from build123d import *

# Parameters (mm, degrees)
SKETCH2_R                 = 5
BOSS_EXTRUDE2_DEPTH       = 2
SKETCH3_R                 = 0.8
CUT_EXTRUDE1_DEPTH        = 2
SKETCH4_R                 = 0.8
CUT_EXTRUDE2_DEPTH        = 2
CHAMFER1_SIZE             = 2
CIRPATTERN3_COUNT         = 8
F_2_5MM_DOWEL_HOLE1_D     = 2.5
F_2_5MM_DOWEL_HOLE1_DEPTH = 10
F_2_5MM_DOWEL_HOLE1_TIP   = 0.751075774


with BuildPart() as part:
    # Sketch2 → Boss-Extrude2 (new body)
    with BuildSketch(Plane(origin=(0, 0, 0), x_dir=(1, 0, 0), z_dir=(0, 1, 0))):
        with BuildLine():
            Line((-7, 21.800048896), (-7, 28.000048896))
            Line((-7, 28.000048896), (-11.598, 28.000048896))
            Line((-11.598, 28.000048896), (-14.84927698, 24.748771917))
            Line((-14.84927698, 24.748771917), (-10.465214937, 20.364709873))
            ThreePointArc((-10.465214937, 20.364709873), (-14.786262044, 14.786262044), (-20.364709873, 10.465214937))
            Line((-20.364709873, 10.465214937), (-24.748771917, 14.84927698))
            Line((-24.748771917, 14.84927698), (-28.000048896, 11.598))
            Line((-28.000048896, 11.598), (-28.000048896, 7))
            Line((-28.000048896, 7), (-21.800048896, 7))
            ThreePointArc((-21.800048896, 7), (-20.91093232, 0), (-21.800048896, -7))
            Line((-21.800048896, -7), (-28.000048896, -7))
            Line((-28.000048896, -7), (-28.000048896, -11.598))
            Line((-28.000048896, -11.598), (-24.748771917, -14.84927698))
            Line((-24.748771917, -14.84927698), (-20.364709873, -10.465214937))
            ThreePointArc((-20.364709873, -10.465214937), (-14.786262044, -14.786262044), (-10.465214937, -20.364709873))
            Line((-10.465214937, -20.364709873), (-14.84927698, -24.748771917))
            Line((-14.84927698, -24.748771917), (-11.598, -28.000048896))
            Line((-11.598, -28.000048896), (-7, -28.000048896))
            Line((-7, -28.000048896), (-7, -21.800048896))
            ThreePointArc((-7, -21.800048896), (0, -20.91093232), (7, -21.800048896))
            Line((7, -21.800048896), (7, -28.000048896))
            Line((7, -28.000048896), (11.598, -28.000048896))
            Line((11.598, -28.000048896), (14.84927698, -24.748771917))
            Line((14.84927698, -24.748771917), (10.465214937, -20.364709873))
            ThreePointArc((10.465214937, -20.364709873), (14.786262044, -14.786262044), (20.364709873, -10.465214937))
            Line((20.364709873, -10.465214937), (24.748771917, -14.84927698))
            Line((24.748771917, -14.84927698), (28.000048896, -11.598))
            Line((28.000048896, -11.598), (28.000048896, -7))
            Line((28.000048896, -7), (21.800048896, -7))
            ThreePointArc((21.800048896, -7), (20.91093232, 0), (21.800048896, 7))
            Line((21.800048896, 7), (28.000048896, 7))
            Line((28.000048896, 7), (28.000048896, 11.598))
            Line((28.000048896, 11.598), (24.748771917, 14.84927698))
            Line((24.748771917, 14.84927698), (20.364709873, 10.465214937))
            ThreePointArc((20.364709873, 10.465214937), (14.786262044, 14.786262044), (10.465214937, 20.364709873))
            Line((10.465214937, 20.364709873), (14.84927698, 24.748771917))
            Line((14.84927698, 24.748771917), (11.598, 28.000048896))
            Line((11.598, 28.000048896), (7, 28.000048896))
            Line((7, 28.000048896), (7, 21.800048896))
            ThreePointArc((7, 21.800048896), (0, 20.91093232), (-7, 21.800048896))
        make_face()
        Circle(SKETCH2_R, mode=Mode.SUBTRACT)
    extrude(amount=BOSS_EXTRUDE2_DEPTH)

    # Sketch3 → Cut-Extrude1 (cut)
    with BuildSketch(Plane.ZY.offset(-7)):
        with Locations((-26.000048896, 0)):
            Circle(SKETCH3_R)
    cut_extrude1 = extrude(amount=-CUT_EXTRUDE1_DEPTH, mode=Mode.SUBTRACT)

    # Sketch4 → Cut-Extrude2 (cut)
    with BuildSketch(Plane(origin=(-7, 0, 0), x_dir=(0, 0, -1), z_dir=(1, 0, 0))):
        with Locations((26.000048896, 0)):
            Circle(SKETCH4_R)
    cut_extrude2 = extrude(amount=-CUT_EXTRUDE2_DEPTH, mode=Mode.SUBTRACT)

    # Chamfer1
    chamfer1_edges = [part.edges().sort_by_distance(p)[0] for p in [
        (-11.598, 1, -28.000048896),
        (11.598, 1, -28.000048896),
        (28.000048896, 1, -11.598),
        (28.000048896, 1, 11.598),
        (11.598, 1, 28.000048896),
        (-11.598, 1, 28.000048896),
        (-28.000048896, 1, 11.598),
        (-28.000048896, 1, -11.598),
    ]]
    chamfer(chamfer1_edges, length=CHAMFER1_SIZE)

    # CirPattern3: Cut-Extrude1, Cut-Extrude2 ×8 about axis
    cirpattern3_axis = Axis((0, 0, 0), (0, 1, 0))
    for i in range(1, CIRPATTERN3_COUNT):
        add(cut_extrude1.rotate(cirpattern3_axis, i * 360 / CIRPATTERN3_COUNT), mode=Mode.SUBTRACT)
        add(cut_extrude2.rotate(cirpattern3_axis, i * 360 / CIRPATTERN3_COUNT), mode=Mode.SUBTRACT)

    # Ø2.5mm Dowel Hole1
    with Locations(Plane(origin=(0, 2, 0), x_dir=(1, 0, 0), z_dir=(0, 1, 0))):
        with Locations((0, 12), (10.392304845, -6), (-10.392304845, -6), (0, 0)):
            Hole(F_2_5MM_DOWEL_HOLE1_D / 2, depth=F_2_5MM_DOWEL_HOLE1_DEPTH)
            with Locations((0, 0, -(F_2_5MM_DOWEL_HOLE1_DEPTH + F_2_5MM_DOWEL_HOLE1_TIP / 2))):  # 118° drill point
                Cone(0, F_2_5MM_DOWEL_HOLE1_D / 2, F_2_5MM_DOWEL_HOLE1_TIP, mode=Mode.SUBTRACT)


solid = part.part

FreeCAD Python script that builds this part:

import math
import FreeCAD as App
import Part
import Sketcher
from FreeCAD import Vector
Q = App.Units.Quantity


def edges_at(feature, points):
    """Names of the edges that pass closest to the given points."""
    edges = feature.Shape.Edges
    near = lambda p: min(range(len(edges)), key=lambda i: edges[i].distToShape(Part.Vertex(*p))[0])
    return sorted({f"Edge{near(p) + 1}" for p in points})

doc = App.newDocument("Part")
body = doc.addObject("PartDesign::Body", "Body")

# Sketch on XZ plane
sketch1 = body.newObject("Sketcher::SketchObject", "Sketch")
sketch1.AttachmentSupport = (doc.getObject("XZ_Plane"), [""])
sketch1.MapMode = "FlatFace"
sketch1.addGeometry([
    Part.LineSegment(Vector(-7, -21.800049, 0), Vector(-7, -28.000049, 0)),  # 0
    Part.LineSegment(Vector(-7, -28.000049, 0), Vector(-11.598, -28.000049, 0)),  # 1
    Part.LineSegment(Vector(-11.598, -28.000049, 0), Vector(-14.849277, -24.748772, 0)),  # 2
    Part.LineSegment(Vector(-14.849277, -24.748772, 0), Vector(-10.465215, -20.36471, 0)),  # 3
    Part.ArcOfCircle(Part.Circle(Vector(-34.585252, -34.585252, 0), Vector(0, 0, 1), 28), math.radians(30.522488), math.radians(59.477512)),  # 4
    Part.LineSegment(Vector(-20.36471, -10.465215, 0), Vector(-24.748772, -14.849277, 0)),  # 5
    Part.LineSegment(Vector(-24.748772, -14.849277, 0), Vector(-28.000049, -11.598, 0)),  # 6
    Part.LineSegment(Vector(-28.000049, -11.598, 0), Vector(-28.000049, -7, 0)),  # 7
    Part.LineSegment(Vector(-28.000049, -7, 0), Vector(-21.800049, -7, 0)),  # 8
    Part.ArcOfCircle(Part.Circle(Vector(-48.910932, 0, 0), Vector(0, 0, 1), 28), math.radians(-14.477512), math.radians(14.477512)),  # 9
    Part.LineSegment(Vector(-21.800049, 7, 0), Vector(-28.000049, 7, 0)),  # 10
    Part.LineSegment(Vector(-28.000049, 7, 0), Vector(-28.000049, 11.598, 0)),  # 11
    Part.LineSegment(Vector(-28.000049, 11.598, 0), Vector(-24.748772, 14.849277, 0)),  # 12
    Part.LineSegment(Vector(-24.748772, 14.849277, 0), Vector(-20.36471, 10.465215, 0)),  # 13
    Part.ArcOfCircle(Part.Circle(Vector(-34.585252, 34.585252, 0), Vector(0, 0, 1), 28), math.radians(-59.477512), math.radians(-30.522488)),  # 14
    Part.LineSegment(Vector(-10.465215, 20.36471, 0), Vector(-14.849277, 24.748772, 0)),  # 15
    Part.LineSegment(Vector(-14.849277, 24.748772, 0), Vector(-11.598, 28.000049, 0)),  # 16
    Part.LineSegment(Vector(-11.598, 28.000049, 0), Vector(-7, 28.000049, 0)),  # 17
    Part.LineSegment(Vector(-7, 28.000049, 0), Vector(-7, 21.800049, 0)),  # 18
    Part.ArcOfCircle(Part.Circle(Vector(0, 48.910932, 0), Vector(0, 0, 1), 28), math.radians(-104.477512), math.radians(-75.522488)),  # 19
    Part.LineSegment(Vector(7, 21.800049, 0), Vector(7, 28.000049, 0)),  # 20
    Part.LineSegment(Vector(7, 28.000049, 0), Vector(11.598, 28.000049, 0)),  # 21
    Part.LineSegment(Vector(11.598, 28.000049, 0), Vector(14.849277, 24.748772, 0)),  # 22
    Part.LineSegment(Vector(14.849277, 24.748772, 0), Vector(10.465215, 20.36471, 0)),  # 23
    Part.ArcOfCircle(Part.Circle(Vector(34.585252, 34.585252, 0), Vector(0, 0, 1), 28), math.radians(-149.477512), math.radians(-120.522488)),  # 24
    Part.LineSegment(Vector(20.36471, 10.465215, 0), Vector(24.748772, 14.849277, 0)),  # 25
    Part.LineSegment(Vector(24.748772, 14.849277, 0), Vector(28.000049, 11.598, 0)),  # 26
    Part.LineSegment(Vector(28.000049, 11.598, 0), Vector(28.000049, 7, 0)),  # 27
    Part.LineSegment(Vector(28.000049, 7, 0), Vector(21.800049, 7, 0)),  # 28
    Part.ArcOfCircle(Part.Circle(Vector(48.910932, 0, 0), Vector(0, 0, 1), 28), math.radians(165.522488), math.radians(194.477512)),  # 29
    Part.LineSegment(Vector(21.800049, -7, 0), Vector(28.000049, -7, 0)),  # 30
    Part.LineSegment(Vector(28.000049, -7, 0), Vector(28.000049, -11.598, 0)),  # 31
    Part.LineSegment(Vector(28.000049, -11.598, 0), Vector(24.748772, -14.849277, 0)),  # 32
    Part.LineSegment(Vector(24.748772, -14.849277, 0), Vector(20.36471, -10.465215, 0)),  # 33
    Part.ArcOfCircle(Part.Circle(Vector(34.585252, -34.585252, 0), Vector(0, 0, 1), 28), math.radians(120.522488), math.radians(149.477512)),  # 34
    Part.LineSegment(Vector(10.465215, -20.36471, 0), Vector(14.849277, -24.748772, 0)),  # 35
    Part.LineSegment(Vector(14.849277, -24.748772, 0), Vector(11.598, -28.000049, 0)),  # 36
    Part.LineSegment(Vector(11.598, -28.000049, 0), Vector(7, -28.000049, 0)),  # 37
    Part.LineSegment(Vector(7, -28.000049, 0), Vector(7, -21.800049, 0)),  # 38
    Part.ArcOfCircle(Part.Circle(Vector(0, -48.910932, 0), Vector(0, 0, 1), 28), math.radians(75.522488), math.radians(104.477512)),  # 39
    Part.Circle(Vector(0, 0, 0), Vector(0, 0, 1), 5),  # 40
], False)
sketch1.addConstraint([
    Sketcher.Constraint("Coincident", 0, 2, 1, 1),
    Sketcher.Constraint("Coincident", 1, 2, 2, 1),
    Sketcher.Constraint("Coincident", 2, 2, 3, 1),
    Sketcher.Constraint("Coincident", 3, 2, 4, 1),
    Sketcher.Constraint("Coincident", 4, 2, 5, 1),
    Sketcher.Constraint("Coincident", 5, 2, 6, 1),
    Sketcher.Constraint("Coincident", 6, 2, 7, 1),
    Sketcher.Constraint("Coincident", 7, 2, 8, 1),
    Sketcher.Constraint("Coincident", 8, 2, 9, 1),
    Sketcher.Constraint("Coincident", 9, 2, 10, 1),
    Sketcher.Constraint("Coincident", 10, 2, 11, 1),
    Sketcher.Constraint("Coincident", 11, 2, 12, 1),
    Sketcher.Constraint("Coincident", 12, 2, 13, 1),
    Sketcher.Constraint("Coincident", 13, 2, 14, 1),
    Sketcher.Constraint("Coincident", 14, 2, 15, 1),
    Sketcher.Constraint("Coincident", 15, 2, 16, 1),
    Sketcher.Constraint("Coincident", 16, 2, 17, 1),
    Sketcher.Constraint("Coincident", 17, 2, 18, 1),
    Sketcher.Constraint("Coincident", 18, 2, 19, 1),
    Sketcher.Constraint("Coincident", 19, 2, 20, 1),
    Sketcher.Constraint("Coincident", 20, 2, 21, 1),
    Sketcher.Constraint("Coincident", 21, 2, 22, 1),
    Sketcher.Constraint("Coincident", 22, 2, 23, 1),
    Sketcher.Constraint("Coincident", 23, 2, 24, 1),
    Sketcher.Constraint("Coincident", 24, 2, 25, 1),
    Sketcher.Constraint("Coincident", 25, 2, 26, 1),
    Sketcher.Constraint("Coincident", 26, 2, 27, 1),
    Sketcher.Constraint("Coincident", 27, 2, 28, 1),
    Sketcher.Constraint("Coincident", 28, 2, 29, 1),
    Sketcher.Constraint("Coincident", 29, 2, 30, 1),
    Sketcher.Constraint("Coincident", 30, 2, 31, 1),
    Sketcher.Constraint("Coincident", 31, 2, 32, 1),
    Sketcher.Constraint("Coincident", 32, 2, 33, 1),
    Sketcher.Constraint("Coincident", 33, 2, 34, 1),
    Sketcher.Constraint("Coincident", 34, 2, 35, 1),
    Sketcher.Constraint("Coincident", 35, 2, 36, 1),
    Sketcher.Constraint("Coincident", 36, 2, 37, 1),
    Sketcher.Constraint("Coincident", 37, 2, 38, 1),
    Sketcher.Constraint("Coincident", 38, 2, 39, 1),
    Sketcher.Constraint("Coincident", 39, 2, 0, 1),
    Sketcher.Constraint("Vertical", 0),
    Sketcher.Constraint("Horizontal", 1),
    Sketcher.Constraint("Vertical", 7),
    Sketcher.Constraint("Horizontal", 8),
    Sketcher.Constraint("Horizontal", 10),
    Sketcher.Constraint("Vertical", 11),
    Sketcher.Constraint("Horizontal", 17),
    Sketcher.Constraint("Vertical", 18),
    Sketcher.Constraint("Vertical", 20),
    Sketcher.Constraint("Horizontal", 21),
    Sketcher.Constraint("Vertical", 27),
    Sketcher.Constraint("Horizontal", 28),
    Sketcher.Constraint("Horizontal", 30),
    Sketcher.Constraint("Vertical", 31),
    Sketcher.Constraint("Horizontal", 37),
    Sketcher.Constraint("Vertical", 38),
    Sketcher.Constraint("Coincident", 40, 3, -1, 1),
    Sketcher.Constraint("Equal", 4, 9),
    Sketcher.Constraint("Equal", 9, 14),
    Sketcher.Constraint("Equal", 14, 19),
    Sketcher.Constraint("Equal", 19, 24),
    Sketcher.Constraint("Equal", 24, 29),
    Sketcher.Constraint("Equal", 29, 34),
    Sketcher.Constraint("Equal", 34, 39),
    Sketcher.Constraint("Symmetric", 4, 3, 24, 3, -1, 1),
    Sketcher.Constraint("Symmetric", 9, 3, 29, 3, -1, 1),
    Sketcher.Constraint("Symmetric", 14, 3, 34, 3, -1, 1),
    Sketcher.Constraint("Symmetric", 19, 3, 39, 3, -1, 1),
    Sketcher.Constraint("Symmetric", 0, 2, 20, 2, -1, 1),
    Sketcher.Constraint("Symmetric", 2, 2, 22, 2, -1, 1),
    Sketcher.Constraint("Symmetric", 5, 2, 25, 2, -1, 1),
    Sketcher.Constraint("Symmetric", 6, 2, 26, 2, -1, 1),
    Sketcher.Constraint("Symmetric", 10, 2, 30, 2, -1, 1),
    Sketcher.Constraint("Symmetric", 12, 2, 32, 2, -1, 1),
    Sketcher.Constraint("Symmetric", 15, 2, 35, 2, -1, 1),
    Sketcher.Constraint("Symmetric", 16, 2, 36, 2, -1, 1),
    Sketcher.Constraint("Symmetric", 14, 3, 24, 3, -2),
    Sketcher.Constraint("Symmetric", 18, 2, 19, 2, -2),
    Sketcher.Constraint("Symmetric", 16, 2, 21, 2, -2),
    Sketcher.Constraint("Symmetric", 15, 2, 22, 2, -2),
    Sketcher.Constraint("Symmetric", 12, 2, 25, 2, -2),
    Sketcher.Constraint("Symmetric", 11, 2, 26, 2, -2),
    Sketcher.Constraint("Symmetric", 9, 2, 28, 2, -2),
    Sketcher.Constraint("Perpendicular", 2, 3),
    Sketcher.Constraint("Parallel", 3, 5),
    Sketcher.Constraint("Perpendicular", 5, 6),
    Sketcher.Constraint("Perpendicular", 6, 12),
    Sketcher.Constraint("Perpendicular", 12, 13),
    Sketcher.Constraint("Parallel", 13, 15),
    Sketcher.Constraint("Perpendicular", 15, 16),
    Sketcher.Constraint("Perpendicular", 22, 23),
    Sketcher.Constraint("Parallel", 23, 25),
    Sketcher.Constraint("Perpendicular", 26, 32),
    Sketcher.Constraint("Perpendicular", 32, 33),
    Sketcher.Constraint("Parallel", 33, 35),
    Sketcher.Constraint("Horizontal", 8, 2, 29, 2),
    Sketcher.Constraint("Horizontal", 38, 2, 39, 2),
    Sketcher.Constraint("Equal", 30, 0),
    Sketcher.Constraint("Equal", 37, 7),
    Sketcher.Constraint("Equal", 3, 5),
    Sketcher.Constraint("Equal", 2, 6),
    Sketcher.Constraint("Diameter", 40, Q("10 mm")),
    Sketcher.Constraint("Radius", 4, Q("28 mm")),
    Sketcher.Constraint("DistanceX", 8, 1, 8, 2, Q("6.2 mm")),
    Sketcher.Constraint("DistanceX", 0, 2, -1, 1, Q("7 mm")),
    Sketcher.Constraint("DistanceY", 7, 2, -1, 1, Q("7 mm")),
    Sketcher.Constraint("Distance", 3, Q("6.2 mm")),
    Sketcher.Constraint("DistanceX", 1, 2, 1, 1, Q("4.598 mm")),
    Sketcher.Constraint("Distance", 2, Q("4.598 mm")),
    Sketcher.Constraint("DistanceX", 4, 3, -1, 1, Q("34.585252 mm")),
    Sketcher.Constraint("DistanceY", 4, 3, -1, 1, Q("34.585252 mm")),
])
pad1 = body.newObject("PartDesign::Pad", "Pad")
pad1.Profile = sketch1
pad1.Length = 2
pad1.Reversed = True

# Sketch on YZ plane
sketch2 = body.newObject("Sketcher::SketchObject", "Sketch001")
sketch2.AttachmentSupport = (doc.getObject("YZ_Plane"), [""])
sketch2.MapMode = "FlatFace"
sketch2.AttachmentOffset = App.Placement(Vector(0, 0, 7), App.Rotation())
sketch2.addGeometry(Part.Circle(Vector(0, -26.000049, 0), Vector(0, 0, 1), 0.8), False)
sketch2.addConstraint([
    Sketcher.Constraint("PointOnObject", 0, 3, -2),
    Sketcher.Constraint("Diameter", 0, Q("1.6 mm")),
    Sketcher.Constraint("DistanceY", 0, 3, -1, 1, Q("26.000049 mm")),
])
pocket1 = body.newObject("PartDesign::Pocket", "Pocket")
pocket1.Profile = sketch2
pocket1.Length = 2
pocket1.Reversed = True

# Sketch on YZ plane
sketch3 = body.newObject("Sketcher::SketchObject", "Sketch002")
sketch3.AttachmentSupport = (doc.getObject("YZ_Plane"), [""])
sketch3.MapMode = "FlatFace"
sketch3.AttachmentOffset = App.Placement(Vector(0, 0, -7), App.Rotation())
sketch3.addGeometry(Part.Circle(Vector(0, -26.000049, 0), Vector(0, 0, 1), 0.8), False)
sketch3.addConstraint([
    Sketcher.Constraint("PointOnObject", 0, 3, -2),
    Sketcher.Constraint("Diameter", 0, Q("1.6 mm")),
    Sketcher.Constraint("DistanceY", 0, 3, -1, 1, Q("26.000049 mm")),
])
pocket2 = body.newObject("PartDesign::Pocket", "Pocket001")
pocket2.Profile = sketch3
pocket2.Length = 2
doc.recompute()

chamfer = body.newObject("PartDesign::Chamfer", "Chamfer")
chamfer.Base = (pocket2, edges_at(pocket2, [
    (-11.598, 1, -28),
    (11.598, 1, -28),
    (28, 1, -11.598),
    (28, 1, 11.598),
    (11.598, 1, 28),
    (-11.598, 1, 28),
    (-28, 1, 11.598),
    (-28, 1, -11.598),
]))
chamfer.Size = 2
doc.recompute()

polarpattern = body.newObject("PartDesign::PolarPattern", "PolarPattern")
polarpattern.Originals = [pocket1, pocket2]
polarpattern.Axis = (doc.getObject("Y_Axis"), [""])
polarpattern.Angle = 360
polarpattern.Occurrences = 8
body.Tip = polarpattern

# Sketch on XZ plane
sketch4 = body.newObject("Sketcher::SketchObject", "Sketch003")
sketch4.AttachmentSupport = (doc.getObject("XZ_Plane"), [""])
sketch4.MapMode = "FlatFace"
sketch4.AttachmentOffset = App.Placement(Vector(0, 0, -2), App.Rotation())
sketch4.addGeometry([
    Part.Circle(Vector(0, -12, 0), Vector(0, 0, 1), 1.25),
    Part.Circle(Vector(10.392305, 6, 0), Vector(0, 0, 1), 1.25),
    Part.Circle(Vector(-10.392305, 6, 0), Vector(0, 0, 1), 1.25),
    Part.Circle(Vector(0, 0, 0), Vector(0, 0, 1), 1.25),
], False)
sketch4.addConstraint([
    Sketcher.Constraint("Coincident", 3, 3, -1, 1),
    Sketcher.Constraint("Equal", 0, 1),
    Sketcher.Constraint("Equal", 1, 2),
    Sketcher.Constraint("Equal", 2, 3),
    Sketcher.Constraint("Symmetric", 1, 3, 2, 3, -2),
    Sketcher.Constraint("PointOnObject", 0, 3, -2),
    Sketcher.Constraint("Diameter", 0, Q("2.5 mm")),
    Sketcher.Constraint("DistanceY", 0, 3, -1, 1, Q("12 mm")),
    Sketcher.Constraint("DistanceY", -1, 1, 1, 3, Q("6 mm")),
    Sketcher.Constraint("DistanceX", 2, 3, 1, 3, Q("20.78461 mm")),
])
doc.recompute()
hole = body.newObject("PartDesign::Hole", "Hole")
hole.Profile = sketch4
hole.ThreadType = "None"
hole.Diameter = 2.5
hole.DepthType = "Dimension"
hole.Depth = 10
hole.DrillPoint = "Angled"
hole.DrillPointAngle = 118
hole.Reversed = True

doc.recompute()
